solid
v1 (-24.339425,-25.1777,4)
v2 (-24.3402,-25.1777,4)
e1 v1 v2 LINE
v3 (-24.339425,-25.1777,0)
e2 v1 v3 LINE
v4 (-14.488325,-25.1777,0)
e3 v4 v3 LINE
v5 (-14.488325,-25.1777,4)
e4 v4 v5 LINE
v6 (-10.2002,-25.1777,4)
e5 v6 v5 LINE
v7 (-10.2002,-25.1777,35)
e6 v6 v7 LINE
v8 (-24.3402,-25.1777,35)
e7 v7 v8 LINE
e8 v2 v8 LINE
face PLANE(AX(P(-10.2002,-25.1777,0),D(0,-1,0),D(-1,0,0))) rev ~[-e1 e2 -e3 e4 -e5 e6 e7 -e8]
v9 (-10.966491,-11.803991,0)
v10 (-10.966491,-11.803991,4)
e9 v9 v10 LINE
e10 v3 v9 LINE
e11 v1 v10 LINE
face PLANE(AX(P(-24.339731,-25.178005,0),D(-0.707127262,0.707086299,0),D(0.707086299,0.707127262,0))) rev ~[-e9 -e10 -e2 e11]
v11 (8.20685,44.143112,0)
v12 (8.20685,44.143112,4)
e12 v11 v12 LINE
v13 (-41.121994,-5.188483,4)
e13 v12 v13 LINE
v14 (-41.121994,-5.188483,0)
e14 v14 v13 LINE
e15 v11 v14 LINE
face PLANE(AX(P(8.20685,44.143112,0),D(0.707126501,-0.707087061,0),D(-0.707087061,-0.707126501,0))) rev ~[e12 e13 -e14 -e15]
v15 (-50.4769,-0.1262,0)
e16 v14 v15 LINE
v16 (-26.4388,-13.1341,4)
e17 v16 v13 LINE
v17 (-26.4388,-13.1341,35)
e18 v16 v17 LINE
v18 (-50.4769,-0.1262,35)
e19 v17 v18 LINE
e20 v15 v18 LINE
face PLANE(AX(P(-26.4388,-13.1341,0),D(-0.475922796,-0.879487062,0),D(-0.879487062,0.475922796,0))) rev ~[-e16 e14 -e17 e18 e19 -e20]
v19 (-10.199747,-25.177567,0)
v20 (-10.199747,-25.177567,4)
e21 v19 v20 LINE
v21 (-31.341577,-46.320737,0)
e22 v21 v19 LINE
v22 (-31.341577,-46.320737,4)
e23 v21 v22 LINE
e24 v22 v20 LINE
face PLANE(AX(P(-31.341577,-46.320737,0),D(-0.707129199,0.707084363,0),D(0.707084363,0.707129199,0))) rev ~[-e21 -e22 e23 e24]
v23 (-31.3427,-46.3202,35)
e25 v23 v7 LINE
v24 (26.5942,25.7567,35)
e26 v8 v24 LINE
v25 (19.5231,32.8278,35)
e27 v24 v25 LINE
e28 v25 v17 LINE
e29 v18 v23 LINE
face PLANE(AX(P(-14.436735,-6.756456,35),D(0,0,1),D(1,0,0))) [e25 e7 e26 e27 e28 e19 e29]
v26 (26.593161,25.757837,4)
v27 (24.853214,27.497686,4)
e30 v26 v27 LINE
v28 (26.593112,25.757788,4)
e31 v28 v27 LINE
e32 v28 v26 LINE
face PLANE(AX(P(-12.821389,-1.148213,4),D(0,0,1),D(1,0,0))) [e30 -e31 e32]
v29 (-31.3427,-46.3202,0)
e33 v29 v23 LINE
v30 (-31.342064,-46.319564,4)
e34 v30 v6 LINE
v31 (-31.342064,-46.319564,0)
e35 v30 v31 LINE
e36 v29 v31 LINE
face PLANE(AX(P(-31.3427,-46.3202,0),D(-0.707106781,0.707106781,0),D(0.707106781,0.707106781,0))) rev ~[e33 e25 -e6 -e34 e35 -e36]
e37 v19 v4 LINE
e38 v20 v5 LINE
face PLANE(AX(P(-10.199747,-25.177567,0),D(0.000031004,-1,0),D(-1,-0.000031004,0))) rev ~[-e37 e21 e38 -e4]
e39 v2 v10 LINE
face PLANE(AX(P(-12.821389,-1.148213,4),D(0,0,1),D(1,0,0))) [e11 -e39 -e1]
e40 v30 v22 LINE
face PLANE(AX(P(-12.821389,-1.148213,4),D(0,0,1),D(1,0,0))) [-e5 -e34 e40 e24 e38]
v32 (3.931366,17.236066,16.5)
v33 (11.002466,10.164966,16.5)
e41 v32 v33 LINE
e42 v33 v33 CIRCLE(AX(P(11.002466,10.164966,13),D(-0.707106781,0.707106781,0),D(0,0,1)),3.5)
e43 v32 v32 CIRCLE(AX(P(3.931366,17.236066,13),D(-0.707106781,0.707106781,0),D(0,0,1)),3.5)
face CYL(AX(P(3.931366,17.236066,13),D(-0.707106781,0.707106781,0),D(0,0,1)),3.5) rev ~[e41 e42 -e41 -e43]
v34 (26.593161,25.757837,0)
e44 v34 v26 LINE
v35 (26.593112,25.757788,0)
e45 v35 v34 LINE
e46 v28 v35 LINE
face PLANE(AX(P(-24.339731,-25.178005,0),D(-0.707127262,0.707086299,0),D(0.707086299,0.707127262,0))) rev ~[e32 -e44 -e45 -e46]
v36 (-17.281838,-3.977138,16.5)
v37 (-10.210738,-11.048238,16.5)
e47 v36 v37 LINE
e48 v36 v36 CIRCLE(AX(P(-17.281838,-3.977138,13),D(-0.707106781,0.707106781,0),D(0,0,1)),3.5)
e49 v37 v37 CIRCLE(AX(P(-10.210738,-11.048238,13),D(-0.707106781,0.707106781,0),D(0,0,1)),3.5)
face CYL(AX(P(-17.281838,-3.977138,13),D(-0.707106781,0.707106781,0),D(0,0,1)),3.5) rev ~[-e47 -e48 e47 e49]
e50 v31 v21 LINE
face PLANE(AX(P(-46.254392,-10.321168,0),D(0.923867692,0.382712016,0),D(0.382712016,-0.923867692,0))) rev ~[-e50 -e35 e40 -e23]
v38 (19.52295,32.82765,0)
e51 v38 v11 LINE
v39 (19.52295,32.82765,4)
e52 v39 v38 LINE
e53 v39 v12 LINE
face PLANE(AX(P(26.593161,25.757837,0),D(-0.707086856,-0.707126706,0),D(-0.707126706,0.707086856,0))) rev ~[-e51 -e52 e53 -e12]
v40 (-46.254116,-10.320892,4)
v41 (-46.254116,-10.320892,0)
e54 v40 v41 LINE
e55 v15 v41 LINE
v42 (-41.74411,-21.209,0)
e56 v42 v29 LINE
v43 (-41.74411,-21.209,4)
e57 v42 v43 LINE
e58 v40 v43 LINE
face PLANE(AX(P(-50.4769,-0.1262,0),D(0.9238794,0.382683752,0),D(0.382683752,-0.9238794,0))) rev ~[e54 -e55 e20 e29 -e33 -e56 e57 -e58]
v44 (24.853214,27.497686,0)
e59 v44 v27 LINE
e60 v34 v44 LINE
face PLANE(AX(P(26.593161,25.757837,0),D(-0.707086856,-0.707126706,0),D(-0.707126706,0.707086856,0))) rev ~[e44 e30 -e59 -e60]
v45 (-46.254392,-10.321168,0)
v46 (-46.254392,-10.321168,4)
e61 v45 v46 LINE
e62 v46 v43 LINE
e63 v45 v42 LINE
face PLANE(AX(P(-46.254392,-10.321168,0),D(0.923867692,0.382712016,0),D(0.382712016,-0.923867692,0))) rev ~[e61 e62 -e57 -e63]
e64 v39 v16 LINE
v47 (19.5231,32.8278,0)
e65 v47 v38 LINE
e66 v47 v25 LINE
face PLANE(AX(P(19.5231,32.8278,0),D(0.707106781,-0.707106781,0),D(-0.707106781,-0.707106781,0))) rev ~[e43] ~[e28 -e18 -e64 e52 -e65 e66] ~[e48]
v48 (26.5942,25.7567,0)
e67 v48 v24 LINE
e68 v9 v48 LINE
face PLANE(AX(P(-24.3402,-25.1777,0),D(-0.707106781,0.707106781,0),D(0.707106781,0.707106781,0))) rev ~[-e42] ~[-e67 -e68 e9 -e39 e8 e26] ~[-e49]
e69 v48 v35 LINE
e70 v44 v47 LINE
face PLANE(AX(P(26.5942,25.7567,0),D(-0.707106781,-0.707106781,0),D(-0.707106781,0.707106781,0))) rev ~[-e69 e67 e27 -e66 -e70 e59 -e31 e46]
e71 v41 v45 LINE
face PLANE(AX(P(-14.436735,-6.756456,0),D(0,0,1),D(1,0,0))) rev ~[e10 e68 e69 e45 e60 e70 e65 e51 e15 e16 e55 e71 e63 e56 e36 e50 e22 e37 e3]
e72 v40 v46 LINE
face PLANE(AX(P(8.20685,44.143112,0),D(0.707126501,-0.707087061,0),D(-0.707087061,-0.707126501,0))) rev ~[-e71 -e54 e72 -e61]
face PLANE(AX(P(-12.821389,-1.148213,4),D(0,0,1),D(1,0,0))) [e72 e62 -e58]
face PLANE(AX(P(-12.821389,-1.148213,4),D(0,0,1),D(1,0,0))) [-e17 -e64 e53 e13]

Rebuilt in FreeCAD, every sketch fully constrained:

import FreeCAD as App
import Part
import Sketcher
Q = App.Units.Quantity

doc = App.newDocument("Part")
body = doc.addObject("PartDesign::Body", "Body")

sketch1 = doc.addObject("Sketcher::SketchObject", "Sketch")
body.addObject(sketch1)
sketch1.AttachmentSupport = (doc.XY_Plane, [""])
sketch1.MapMode = "FlatFace"
sketch1.addGeometry([
    Part.LineSegment(App.Vector(-26, -13, 0), App.Vector(-50, 0, 0)),
    Part.LineSegment(App.Vector(-50, 0, 0), App.Vector(-31, -46, 0)),
    Part.LineSegment(App.Vector(-31, -46, 0), App.Vector(-10, -25, 0)),
    Part.LineSegment(App.Vector(-10, -25, 0), App.Vector(-24, -25, 0)),
    Part.LineSegment(App.Vector(-24, -25, 0), App.Vector(27, 26, 0)),
    Part.LineSegment(App.Vector(27, 26, 0), App.Vector(20, 33, 0)),
    Part.LineSegment(App.Vector(20, 33, 0), App.Vector(-26, -13, 0)),
], False)
sketch1.addConstraint([
    Sketcher.Constraint("Coincident", 0, 2, 1, 1),
    Sketcher.Constraint("Coincident", 1, 2, 2, 1),
    Sketcher.Constraint("Coincident", 2, 2, 3, 1),
    Sketcher.Constraint("Coincident", 3, 2, 4, 1),
    Sketcher.Constraint("Coincident", 4, 2, 5, 1),
    Sketcher.Constraint("Coincident", 5, 2, 6, 1),
    Sketcher.Constraint("Coincident", 6, 2, 0, 1),
    Sketcher.Constraint("Horizontal", 3),
    Sketcher.Constraint("Parallel", 2, 4),
    Sketcher.Constraint("Perpendicular", 4, 5),
    Sketcher.Constraint("Perpendicular", 5, 6),
    Sketcher.Constraint("Angle", 2, Q("45 deg")),
    Sketcher.Constraint("Distance", 1, Q("50 mm")),
    Sketcher.Constraint("Distance", 5, Q("10 mm")),
    Sketcher.Constraint("Distance", 6, Q("65 mm")),
    Sketcher.Constraint("DistanceX", 0, 2, -1, 1, Q("50.477 mm")),
    Sketcher.Constraint("DistanceX", -1, 1, 5, 2, Q("19.523 mm")),
    Sketcher.Constraint("Angle", 1, Q("-67.5 deg")),
    Sketcher.Constraint("Distance", 2, Q("29.9 mm")),
    Sketcher.Constraint("DistanceX", 3, 2, 3, 1, Q("14.14 mm")),
    Sketcher.Constraint("DistanceY", 6, 2, -1, 1, Q("13.134 mm")),
])
pad1 = doc.addObject("PartDesign::Pad", "Pad")
body.addObject(pad1)
pad1.Profile = sketch1
pad1.Length = 35

sketch2 = doc.addObject("Sketcher::SketchObject", "Sketch001")
body.addObject(sketch2)
sketch2.AttachmentSupport = (doc.XY_Plane, [""])
sketch2.MapMode = "FlatFace"
sketch2.addGeometry([
    Part.LineSegment(App.Vector(-10, -25, 0), App.Vector(-31, -46, 0)),
    Part.LineSegment(App.Vector(-31, -46, 0), App.Vector(-46, -10, 0)),
    Part.LineSegment(App.Vector(-46, -10, 0), App.Vector(8, 44, 0)),
    Part.LineSegment(App.Vector(8, 44, 0), App.Vector(27, 26, 0)),
    Part.LineSegment(App.Vector(27, 26, 0), App.Vector(-24, -25, 0)),
    Part.LineSegment(App.Vector(-24, -25, 0), App.Vector(-10, -25, 0)),
], False)
sketch2.addConstraint([
    Sketcher.Constraint("Coincident", 0, 2, 1, 1),
    Sketcher.Constraint("Coincident", 1, 2, 2, 1),
    Sketcher.Constraint("Coincident", 2, 2, 3, 1),
    Sketcher.Constraint("Coincident", 3, 2, 4, 1),
    Sketcher.Constraint("Coincident", 4, 2, 5, 1),
    Sketcher.Constraint("Coincident", 5, 2, 0, 1),
    Sketcher.Constraint("Parallel", 0, 2),
    Sketcher.Constraint("Perpendicular", 2, 3),
    Sketcher.Constraint("Perpendicular", 3, 4),
    Sketcher.Constraint("Distance", 0, Q("29.9 mm")),
    Sketcher.Constraint("Distance", 5, Q("14.14 mm")),
    Sketcher.Constraint("Distance", 2, Q("77.022 mm")),
    Sketcher.Constraint("Distance", 4, Q("72.032 mm")),
    Sketcher.Constraint("DistanceY", -1, 1, 2, 2, Q("44.143 mm")),
    Sketcher.Constraint("DistanceY", 4, 2, -1, 1, Q("25.178 mm")),
    Sketcher.Constraint("DistanceY", 1, 2, 3, 2, Q("36.079 mm")),
    Sketcher.Constraint("Distance", 1, Q("38.9662 mm")),
    Sketcher.Constraint("DistanceX", 0, 2, -1, 1, Q("31.3416 mm")),
])
pad2 = doc.addObject("PartDesign::Pad", "Pad001")
body.addObject(pad2)
pad2.Profile = sketch2
pad2.Length = 4

sketch3 = doc.addObject("Sketcher::SketchObject", "Sketch002")
body.addObject(sketch3)
sketch3.Placement = App.Placement(App.Vector(-3.4579, 9.8468, 19.5), App.Rotation(App.Vector(0, 0, 1), App.Vector(0.707106781, 0.707106781, 0), App.Vector(-0.707106781, 0.707106781, 0), "ZXY"))
sketch3.addGeometry([
    Part.Circle(App.Vector(-6.5, 10.4, 0), App.Vector(0, 0, 1), 3.5),
    Part.Circle(App.Vector(-6.5, -19.5, 0), App.Vector(0, 0, 1), 3.5),
], False)
sketch3.addConstraint([
    Sketcher.Constraint("Equal", 0, 1),
    Sketcher.Constraint("Vertical", 0, 3, 1, 3),
    Sketcher.Constraint("Diameter", 0, Q("7 mm")),
    Sketcher.Constraint("DistanceX", 0, 3, -1, 1, Q("6.5 mm")),
    Sketcher.Constraint("DistanceY", 1, 3, 0, 3, Q("30 mm")),
    Sketcher.Constraint("DistanceY", -1, 1, 0, 3, Q("10.45 mm")),
])
pocket1 = doc.addObject("PartDesign::Pocket", "Pocket")
body.addObject(pocket1)
pocket1.Profile = sketch3
pocket1.Type = "ThroughAll"

doc.recompute()
